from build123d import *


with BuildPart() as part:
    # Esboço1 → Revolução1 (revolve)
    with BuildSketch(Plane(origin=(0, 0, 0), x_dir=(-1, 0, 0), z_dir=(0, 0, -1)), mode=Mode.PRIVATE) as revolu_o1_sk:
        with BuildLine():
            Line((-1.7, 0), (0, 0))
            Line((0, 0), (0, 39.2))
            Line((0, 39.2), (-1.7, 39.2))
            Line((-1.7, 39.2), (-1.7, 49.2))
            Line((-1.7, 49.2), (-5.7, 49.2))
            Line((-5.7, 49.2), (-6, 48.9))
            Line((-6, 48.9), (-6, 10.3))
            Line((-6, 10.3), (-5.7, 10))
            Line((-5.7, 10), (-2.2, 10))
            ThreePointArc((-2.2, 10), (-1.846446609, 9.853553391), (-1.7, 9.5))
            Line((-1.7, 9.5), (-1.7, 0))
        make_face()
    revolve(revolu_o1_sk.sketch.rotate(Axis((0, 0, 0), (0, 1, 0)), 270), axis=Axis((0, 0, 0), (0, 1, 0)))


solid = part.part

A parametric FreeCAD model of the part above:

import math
import FreeCAD as App
import Part
import Sketcher
from FreeCAD import Vector

doc = App.newDocument("Part")
params = doc.addObject("Spreadsheet::Sheet", "Params")
for row, (alias, value) in enumerate([
    ("sketch1_radius", "0.5 mm"),
    ("sketch1_width", "4 mm"),
    ("sketch1_height", "10 mm"),
    ("sketch1_width2", "1.7 mm"),
    ("sketch1_height2", "39.2 mm"),
    ("revolution_angle", "360 deg"),
], start=1):
    params.set(f"A{row}", alias)
    params.set(f"B{row}", "=" + value)
    params.setAlias(f"B{row}", alias)

body = doc.addObject("PartDesign::Body", "Body")

sketch1 = body.newObject("Sketcher::SketchObject", "Sketch")
sketch1.AttachmentSupport = (doc.getObject("XY_Plane"), [""])
sketch1.MapMode = "FlatFace"
sketch1.addGeometry(Part.LineSegment(Vector(1.7, 0, 0), Vector(0, 0, 0)), False)
sketch1.addGeometry(Part.LineSegment(Vector(0, 0, 0), Vector(0, 39.2, 0)), False)
sketch1.addGeometry(Part.LineSegment(Vector(0, 39.2, 0), Vector(1.7, 39.2, 0)), False)
sketch1.addGeometry(Part.LineSegment(Vector(1.7, 39.2, 0), Vector(1.7, 49.2, 0)), False)
sketch1.addGeometry(Part.LineSegment(Vector(1.7, 49.2, 0), Vector(5.7, 49.2, 0)), False)
sketch1.addGeometry(Part.LineSegment(Vector(5.7, 49.2, 0), Vector(6, 48.9, 0)), False)
sketch1.addGeometry(Part.LineSegment(Vector(6, 48.9, 0), Vector(6, 10.3, 0)), False)
sketch1.addGeometry(Part.LineSegment(Vector(6, 10.3, 0), Vector(5.7, 10, 0)), False)
sketch1.addGeometry(Part.LineSegment(Vector(5.7, 10, 0), Vector(2.2, 10, 0)), False)
sketch1.addGeometry(Part.ArcOfCircle(Part.Circle(Vector(2.2, 9.5, 0), Vector(0, 0, 1), 0.5), math.radians(90), math.radians(180)), False)
sketch1.addGeometry(Part.LineSegment(Vector(1.7, 9.5, 0), Vector(1.7, 0, 0)), False)
sketch1.addConstraint(Sketcher.Constraint("Coincident", 0, 2, 1, 1))
sketch1.addConstraint(Sketcher.Constraint("Coincident", 1, 2, 2, 1))
sketch1.addConstraint(Sketcher.Constraint("Coincident", 2, 2, 3, 1))
sketch1.addConstraint(Sketcher.Constraint("Coincident", 3, 2, 4, 1))
sketch1.addConstraint(Sketcher.Constraint("Coincident", 4, 2, 5, 1))
sketch1.addConstraint(Sketcher.Constraint("Coincident", 5, 2, 6, 1))
sketch1.addConstraint(Sketcher.Constraint("Coincident", 6, 2, 7, 1))
sketch1.addConstraint(Sketcher.Constraint("Coincident", 7, 2, 8, 1))
sketch1.addConstraint(Sketcher.Constraint("Tangent", 8, 2, 9, 1))
sketch1.addConstraint(Sketcher.Constraint("Tangent", 9, 2, 10, 1))
sketch1.addConstraint(Sketcher.Constraint("Coincident", 10, 2, 0, 1))
sketch1.addConstraint(Sketcher.Constraint("Horizontal", 0))
sketch1.addConstraint(Sketcher.Constraint("Vertical", 1))
sketch1.addConstraint(Sketcher.Constraint("Horizontal", 2))
sketch1.addConstraint(Sketcher.Constraint("Vertical", 3))
sketch1.addConstraint(Sketcher.Constraint("Horizontal", 4))
sketch1.addConstraint(Sketcher.Constraint("Vertical", 6))
sketch1.addConstraint(Sketcher.Constraint("Horizontal", 8))
sketch1.addConstraint(Sketcher.Constraint("Vertical", 10))
sketch1.addConstraint(Sketcher.Constraint("Coincident", 0, 2, -1, 1))
sketch1.addConstraint(Sketcher.Constraint("Perpendicular", 5, 7))
sketch1.addConstraint(Sketcher.Constraint("Vertical", 4, 2, 7, 2))
sketch1.addConstraint(Sketcher.Constraint("Vertical", 3, 2, 9, 2))
sketch1.addConstraint(Sketcher.Constraint("Equal", 5, 7))
sketch1.addConstraint(Sketcher.Constraint("Radius", 9, 0.5))
sketch1.addConstraint(Sketcher.Constraint("DistanceX", 4, 1, 4, 2, 4.0))
sketch1.addConstraint(Sketcher.Constraint("DistanceY", 3, 1, 3, 2, 10.0))
sketch1.addConstraint(Sketcher.Constraint("DistanceX", 0, 2, 0, 1, 1.7))
sketch1.addConstraint(Sketcher.Constraint("DistanceY", 1, 1, 1, 2, 39.2))
sketch1.addConstraint(Sketcher.Constraint("DistanceY", 6, 2, 6, 1, 38.6))
sketch1.addConstraint(Sketcher.Constraint("DistanceY", 10, 2, 10, 1, 9.5))
sketch1.setExpression("Constraints[24]", "Params.sketch1_radius")
sketch1.setExpression("Constraints[25]", "Params.sketch1_width")
sketch1.setExpression("Constraints[26]", "Params.sketch1_height")
sketch1.setExpression("Constraints[27]", "Params.sketch1_width2")
sketch1.setExpression("Constraints[28]", "Params.sketch1_height2")
revolution = body.newObject("PartDesign::Revolution", "Revolution")
revolution.Profile = sketch1
revolution.ReferenceAxis = (sketch1, ["V_Axis"])
revolution.setExpression("Angle", "Params.revolution_angle")

doc.recompute()
